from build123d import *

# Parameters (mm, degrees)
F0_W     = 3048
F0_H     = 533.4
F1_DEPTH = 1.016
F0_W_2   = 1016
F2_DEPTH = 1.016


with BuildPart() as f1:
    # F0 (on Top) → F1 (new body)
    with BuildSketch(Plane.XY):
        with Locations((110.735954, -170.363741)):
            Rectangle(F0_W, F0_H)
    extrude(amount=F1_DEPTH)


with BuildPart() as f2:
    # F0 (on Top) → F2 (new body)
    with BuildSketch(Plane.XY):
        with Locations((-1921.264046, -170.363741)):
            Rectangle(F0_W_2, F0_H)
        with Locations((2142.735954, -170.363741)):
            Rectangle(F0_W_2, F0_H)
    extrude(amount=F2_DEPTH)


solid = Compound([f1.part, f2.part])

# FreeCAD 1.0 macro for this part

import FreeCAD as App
import Part
import Sketcher

V = App.Vector
Q = App.Units.Quantity

doc = App.newDocument("Part")
body = doc.addObject("PartDesign::Body", "Body")

sketch1 = doc.addObject("Sketcher::SketchObject", "Sketch")
body.addObject(sketch1)
sketch1.AttachmentSupport = (doc.XY_Plane, [""])
sketch1.MapMode = "FlatFace"
sketch1.addGeometry([
    Part.LineSegment(V(-1413.264046, 96.336259, 0), V(-1413.264046, -437.063741, 0)),
    Part.LineSegment(V(-1413.264046, -437.063741, 0), V(1634.735954, -437.063741, 0)),
    Part.LineSegment(V(1634.735954, -437.063741, 0), V(1634.735954, 96.336259, 0)),
    Part.LineSegment(V(1634.735954, 96.336259, 0), V(-1413.264046, 96.336259, 0)),
], False)
sketch1.addConstraint([
    Sketcher.Constraint("Coincident", 0, 2, 1, 1),
    Sketcher.Constraint("Coincident", 1, 2, 2, 1),
    Sketcher.Constraint("Coincident", 2, 2, 3, 1),
    Sketcher.Constraint("Coincident", 3, 2, 0, 1),
    Sketcher.Constraint("Vertical", 0),
    Sketcher.Constraint("Horizontal", 1),
    Sketcher.Constraint("Vertical", 2),
    Sketcher.Constraint("Horizontal", 3),
    Sketcher.Constraint("DistanceX", 1, 1, 1, 2, Q("120 in")),
    Sketcher.Constraint("DistanceY", 0, 2, 0, 1, Q("21 in")),
    Sketcher.Constraint("DistanceY", 0, 2, -1, 1, 437.063741),
    Sketcher.Constraint("DistanceX", 0, 2, -1, 1, 1413.264046),
])
pad1 = doc.addObject("PartDesign::Pad", "Pad")
body.addObject(pad1)
pad1.Profile = sketch1
pad1.Length = Q("0.04 in")
body2 = doc.addObject("PartDesign::Body", "Body001")
body2.AllowCompound = True

sketch2 = doc.addObject("Sketcher::SketchObject", "Sketch001")
body2.addObject(sketch2)
sketch2.AttachmentSupport = (doc.getObject("XY_Plane001"), [""])
sketch2.MapMode = "FlatFace"
sketch2.addGeometry([
    Part.LineSegment(V(-2429.264046, 96.336259, 0), V(-2429.264046, -437.063741, 0)),
    Part.LineSegment(V(-2429.264046, -437.063741, 0), V(-1413.264046, -437.063741, 0)),
    Part.LineSegment(V(-1413.264046, -437.063741, 0), V(-1413.264046, 96.336259, 0)),
    Part.LineSegment(V(-1413.264046, 96.336259, 0), V(-2429.264046, 96.336259, 0)),
    Part.LineSegment(V(1634.735954, 96.336259, 0), V(1634.735954, -437.063741, 0)),
    Part.LineSegment(V(1634.735954, -437.063741, 0), V(2650.735954, -437.063741, 0)),
    Part.LineSegment(V(2650.735954, -437.063741, 0), V(2650.735954, 96.336259, 0)),
    Part.LineSegment(V(2650.735954, 96.336259, 0), V(1634.735954, 96.336259, 0)),
], False)
sketch2.addConstraint([
    Sketcher.Constraint("Coincident", 0, 2, 1, 1),
    Sketcher.Constraint("Coincident", 1, 2, 2, 1),
    Sketcher.Constraint("Coincident", 2, 2, 3, 1),
    Sketcher.Constraint("Coincident", 3, 2, 0, 1),
    Sketcher.Constraint("Coincident", 4, 2, 5, 1),
    Sketcher.Constraint("Coincident", 5, 2, 6, 1),
    Sketcher.Constraint("Coincident", 6, 2, 7, 1),
    Sketcher.Constraint("Coincident", 7, 2, 4, 1),
    Sketcher.Constraint("Vertical", 0),
    Sketcher.Constraint("Horizontal", 1),
    Sketcher.Constraint("Vertical", 2),
    Sketcher.Constraint("Horizontal", 3),
    Sketcher.Constraint("Vertical", 4),
    Sketcher.Constraint("Horizontal", 5),
    Sketcher.Constraint("Vertical", 6),
    Sketcher.Constraint("Horizontal", 7),
    Sketcher.Constraint("Horizontal", 1, 2, 4, 2),
    Sketcher.Constraint("Horizontal", 3, 2, 6, 2),
    Sketcher.Constraint("Equal", 3, 5),
    Sketcher.Constraint("DistanceX", 1, 1, 1, 2, Q("40 in")),
    Sketcher.Constraint("DistanceY", 0, 2, 0, 1, Q("21 in")),
    Sketcher.Constraint("DistanceX", 1, 2, 4, 2, Q("120 in")),
    Sketcher.Constraint("DistanceY", 0, 2, -1, 1, 437.063741),
    Sketcher.Constraint("DistanceX", 0, 2, -1, 1, 2429.264046),
])
pad2 = doc.addObject("PartDesign::Pad", "Pad001")
body2.addObject(pad2)
pad2.Profile = sketch2
pad2.Length = Q("0.04 in")

doc.recompute()
